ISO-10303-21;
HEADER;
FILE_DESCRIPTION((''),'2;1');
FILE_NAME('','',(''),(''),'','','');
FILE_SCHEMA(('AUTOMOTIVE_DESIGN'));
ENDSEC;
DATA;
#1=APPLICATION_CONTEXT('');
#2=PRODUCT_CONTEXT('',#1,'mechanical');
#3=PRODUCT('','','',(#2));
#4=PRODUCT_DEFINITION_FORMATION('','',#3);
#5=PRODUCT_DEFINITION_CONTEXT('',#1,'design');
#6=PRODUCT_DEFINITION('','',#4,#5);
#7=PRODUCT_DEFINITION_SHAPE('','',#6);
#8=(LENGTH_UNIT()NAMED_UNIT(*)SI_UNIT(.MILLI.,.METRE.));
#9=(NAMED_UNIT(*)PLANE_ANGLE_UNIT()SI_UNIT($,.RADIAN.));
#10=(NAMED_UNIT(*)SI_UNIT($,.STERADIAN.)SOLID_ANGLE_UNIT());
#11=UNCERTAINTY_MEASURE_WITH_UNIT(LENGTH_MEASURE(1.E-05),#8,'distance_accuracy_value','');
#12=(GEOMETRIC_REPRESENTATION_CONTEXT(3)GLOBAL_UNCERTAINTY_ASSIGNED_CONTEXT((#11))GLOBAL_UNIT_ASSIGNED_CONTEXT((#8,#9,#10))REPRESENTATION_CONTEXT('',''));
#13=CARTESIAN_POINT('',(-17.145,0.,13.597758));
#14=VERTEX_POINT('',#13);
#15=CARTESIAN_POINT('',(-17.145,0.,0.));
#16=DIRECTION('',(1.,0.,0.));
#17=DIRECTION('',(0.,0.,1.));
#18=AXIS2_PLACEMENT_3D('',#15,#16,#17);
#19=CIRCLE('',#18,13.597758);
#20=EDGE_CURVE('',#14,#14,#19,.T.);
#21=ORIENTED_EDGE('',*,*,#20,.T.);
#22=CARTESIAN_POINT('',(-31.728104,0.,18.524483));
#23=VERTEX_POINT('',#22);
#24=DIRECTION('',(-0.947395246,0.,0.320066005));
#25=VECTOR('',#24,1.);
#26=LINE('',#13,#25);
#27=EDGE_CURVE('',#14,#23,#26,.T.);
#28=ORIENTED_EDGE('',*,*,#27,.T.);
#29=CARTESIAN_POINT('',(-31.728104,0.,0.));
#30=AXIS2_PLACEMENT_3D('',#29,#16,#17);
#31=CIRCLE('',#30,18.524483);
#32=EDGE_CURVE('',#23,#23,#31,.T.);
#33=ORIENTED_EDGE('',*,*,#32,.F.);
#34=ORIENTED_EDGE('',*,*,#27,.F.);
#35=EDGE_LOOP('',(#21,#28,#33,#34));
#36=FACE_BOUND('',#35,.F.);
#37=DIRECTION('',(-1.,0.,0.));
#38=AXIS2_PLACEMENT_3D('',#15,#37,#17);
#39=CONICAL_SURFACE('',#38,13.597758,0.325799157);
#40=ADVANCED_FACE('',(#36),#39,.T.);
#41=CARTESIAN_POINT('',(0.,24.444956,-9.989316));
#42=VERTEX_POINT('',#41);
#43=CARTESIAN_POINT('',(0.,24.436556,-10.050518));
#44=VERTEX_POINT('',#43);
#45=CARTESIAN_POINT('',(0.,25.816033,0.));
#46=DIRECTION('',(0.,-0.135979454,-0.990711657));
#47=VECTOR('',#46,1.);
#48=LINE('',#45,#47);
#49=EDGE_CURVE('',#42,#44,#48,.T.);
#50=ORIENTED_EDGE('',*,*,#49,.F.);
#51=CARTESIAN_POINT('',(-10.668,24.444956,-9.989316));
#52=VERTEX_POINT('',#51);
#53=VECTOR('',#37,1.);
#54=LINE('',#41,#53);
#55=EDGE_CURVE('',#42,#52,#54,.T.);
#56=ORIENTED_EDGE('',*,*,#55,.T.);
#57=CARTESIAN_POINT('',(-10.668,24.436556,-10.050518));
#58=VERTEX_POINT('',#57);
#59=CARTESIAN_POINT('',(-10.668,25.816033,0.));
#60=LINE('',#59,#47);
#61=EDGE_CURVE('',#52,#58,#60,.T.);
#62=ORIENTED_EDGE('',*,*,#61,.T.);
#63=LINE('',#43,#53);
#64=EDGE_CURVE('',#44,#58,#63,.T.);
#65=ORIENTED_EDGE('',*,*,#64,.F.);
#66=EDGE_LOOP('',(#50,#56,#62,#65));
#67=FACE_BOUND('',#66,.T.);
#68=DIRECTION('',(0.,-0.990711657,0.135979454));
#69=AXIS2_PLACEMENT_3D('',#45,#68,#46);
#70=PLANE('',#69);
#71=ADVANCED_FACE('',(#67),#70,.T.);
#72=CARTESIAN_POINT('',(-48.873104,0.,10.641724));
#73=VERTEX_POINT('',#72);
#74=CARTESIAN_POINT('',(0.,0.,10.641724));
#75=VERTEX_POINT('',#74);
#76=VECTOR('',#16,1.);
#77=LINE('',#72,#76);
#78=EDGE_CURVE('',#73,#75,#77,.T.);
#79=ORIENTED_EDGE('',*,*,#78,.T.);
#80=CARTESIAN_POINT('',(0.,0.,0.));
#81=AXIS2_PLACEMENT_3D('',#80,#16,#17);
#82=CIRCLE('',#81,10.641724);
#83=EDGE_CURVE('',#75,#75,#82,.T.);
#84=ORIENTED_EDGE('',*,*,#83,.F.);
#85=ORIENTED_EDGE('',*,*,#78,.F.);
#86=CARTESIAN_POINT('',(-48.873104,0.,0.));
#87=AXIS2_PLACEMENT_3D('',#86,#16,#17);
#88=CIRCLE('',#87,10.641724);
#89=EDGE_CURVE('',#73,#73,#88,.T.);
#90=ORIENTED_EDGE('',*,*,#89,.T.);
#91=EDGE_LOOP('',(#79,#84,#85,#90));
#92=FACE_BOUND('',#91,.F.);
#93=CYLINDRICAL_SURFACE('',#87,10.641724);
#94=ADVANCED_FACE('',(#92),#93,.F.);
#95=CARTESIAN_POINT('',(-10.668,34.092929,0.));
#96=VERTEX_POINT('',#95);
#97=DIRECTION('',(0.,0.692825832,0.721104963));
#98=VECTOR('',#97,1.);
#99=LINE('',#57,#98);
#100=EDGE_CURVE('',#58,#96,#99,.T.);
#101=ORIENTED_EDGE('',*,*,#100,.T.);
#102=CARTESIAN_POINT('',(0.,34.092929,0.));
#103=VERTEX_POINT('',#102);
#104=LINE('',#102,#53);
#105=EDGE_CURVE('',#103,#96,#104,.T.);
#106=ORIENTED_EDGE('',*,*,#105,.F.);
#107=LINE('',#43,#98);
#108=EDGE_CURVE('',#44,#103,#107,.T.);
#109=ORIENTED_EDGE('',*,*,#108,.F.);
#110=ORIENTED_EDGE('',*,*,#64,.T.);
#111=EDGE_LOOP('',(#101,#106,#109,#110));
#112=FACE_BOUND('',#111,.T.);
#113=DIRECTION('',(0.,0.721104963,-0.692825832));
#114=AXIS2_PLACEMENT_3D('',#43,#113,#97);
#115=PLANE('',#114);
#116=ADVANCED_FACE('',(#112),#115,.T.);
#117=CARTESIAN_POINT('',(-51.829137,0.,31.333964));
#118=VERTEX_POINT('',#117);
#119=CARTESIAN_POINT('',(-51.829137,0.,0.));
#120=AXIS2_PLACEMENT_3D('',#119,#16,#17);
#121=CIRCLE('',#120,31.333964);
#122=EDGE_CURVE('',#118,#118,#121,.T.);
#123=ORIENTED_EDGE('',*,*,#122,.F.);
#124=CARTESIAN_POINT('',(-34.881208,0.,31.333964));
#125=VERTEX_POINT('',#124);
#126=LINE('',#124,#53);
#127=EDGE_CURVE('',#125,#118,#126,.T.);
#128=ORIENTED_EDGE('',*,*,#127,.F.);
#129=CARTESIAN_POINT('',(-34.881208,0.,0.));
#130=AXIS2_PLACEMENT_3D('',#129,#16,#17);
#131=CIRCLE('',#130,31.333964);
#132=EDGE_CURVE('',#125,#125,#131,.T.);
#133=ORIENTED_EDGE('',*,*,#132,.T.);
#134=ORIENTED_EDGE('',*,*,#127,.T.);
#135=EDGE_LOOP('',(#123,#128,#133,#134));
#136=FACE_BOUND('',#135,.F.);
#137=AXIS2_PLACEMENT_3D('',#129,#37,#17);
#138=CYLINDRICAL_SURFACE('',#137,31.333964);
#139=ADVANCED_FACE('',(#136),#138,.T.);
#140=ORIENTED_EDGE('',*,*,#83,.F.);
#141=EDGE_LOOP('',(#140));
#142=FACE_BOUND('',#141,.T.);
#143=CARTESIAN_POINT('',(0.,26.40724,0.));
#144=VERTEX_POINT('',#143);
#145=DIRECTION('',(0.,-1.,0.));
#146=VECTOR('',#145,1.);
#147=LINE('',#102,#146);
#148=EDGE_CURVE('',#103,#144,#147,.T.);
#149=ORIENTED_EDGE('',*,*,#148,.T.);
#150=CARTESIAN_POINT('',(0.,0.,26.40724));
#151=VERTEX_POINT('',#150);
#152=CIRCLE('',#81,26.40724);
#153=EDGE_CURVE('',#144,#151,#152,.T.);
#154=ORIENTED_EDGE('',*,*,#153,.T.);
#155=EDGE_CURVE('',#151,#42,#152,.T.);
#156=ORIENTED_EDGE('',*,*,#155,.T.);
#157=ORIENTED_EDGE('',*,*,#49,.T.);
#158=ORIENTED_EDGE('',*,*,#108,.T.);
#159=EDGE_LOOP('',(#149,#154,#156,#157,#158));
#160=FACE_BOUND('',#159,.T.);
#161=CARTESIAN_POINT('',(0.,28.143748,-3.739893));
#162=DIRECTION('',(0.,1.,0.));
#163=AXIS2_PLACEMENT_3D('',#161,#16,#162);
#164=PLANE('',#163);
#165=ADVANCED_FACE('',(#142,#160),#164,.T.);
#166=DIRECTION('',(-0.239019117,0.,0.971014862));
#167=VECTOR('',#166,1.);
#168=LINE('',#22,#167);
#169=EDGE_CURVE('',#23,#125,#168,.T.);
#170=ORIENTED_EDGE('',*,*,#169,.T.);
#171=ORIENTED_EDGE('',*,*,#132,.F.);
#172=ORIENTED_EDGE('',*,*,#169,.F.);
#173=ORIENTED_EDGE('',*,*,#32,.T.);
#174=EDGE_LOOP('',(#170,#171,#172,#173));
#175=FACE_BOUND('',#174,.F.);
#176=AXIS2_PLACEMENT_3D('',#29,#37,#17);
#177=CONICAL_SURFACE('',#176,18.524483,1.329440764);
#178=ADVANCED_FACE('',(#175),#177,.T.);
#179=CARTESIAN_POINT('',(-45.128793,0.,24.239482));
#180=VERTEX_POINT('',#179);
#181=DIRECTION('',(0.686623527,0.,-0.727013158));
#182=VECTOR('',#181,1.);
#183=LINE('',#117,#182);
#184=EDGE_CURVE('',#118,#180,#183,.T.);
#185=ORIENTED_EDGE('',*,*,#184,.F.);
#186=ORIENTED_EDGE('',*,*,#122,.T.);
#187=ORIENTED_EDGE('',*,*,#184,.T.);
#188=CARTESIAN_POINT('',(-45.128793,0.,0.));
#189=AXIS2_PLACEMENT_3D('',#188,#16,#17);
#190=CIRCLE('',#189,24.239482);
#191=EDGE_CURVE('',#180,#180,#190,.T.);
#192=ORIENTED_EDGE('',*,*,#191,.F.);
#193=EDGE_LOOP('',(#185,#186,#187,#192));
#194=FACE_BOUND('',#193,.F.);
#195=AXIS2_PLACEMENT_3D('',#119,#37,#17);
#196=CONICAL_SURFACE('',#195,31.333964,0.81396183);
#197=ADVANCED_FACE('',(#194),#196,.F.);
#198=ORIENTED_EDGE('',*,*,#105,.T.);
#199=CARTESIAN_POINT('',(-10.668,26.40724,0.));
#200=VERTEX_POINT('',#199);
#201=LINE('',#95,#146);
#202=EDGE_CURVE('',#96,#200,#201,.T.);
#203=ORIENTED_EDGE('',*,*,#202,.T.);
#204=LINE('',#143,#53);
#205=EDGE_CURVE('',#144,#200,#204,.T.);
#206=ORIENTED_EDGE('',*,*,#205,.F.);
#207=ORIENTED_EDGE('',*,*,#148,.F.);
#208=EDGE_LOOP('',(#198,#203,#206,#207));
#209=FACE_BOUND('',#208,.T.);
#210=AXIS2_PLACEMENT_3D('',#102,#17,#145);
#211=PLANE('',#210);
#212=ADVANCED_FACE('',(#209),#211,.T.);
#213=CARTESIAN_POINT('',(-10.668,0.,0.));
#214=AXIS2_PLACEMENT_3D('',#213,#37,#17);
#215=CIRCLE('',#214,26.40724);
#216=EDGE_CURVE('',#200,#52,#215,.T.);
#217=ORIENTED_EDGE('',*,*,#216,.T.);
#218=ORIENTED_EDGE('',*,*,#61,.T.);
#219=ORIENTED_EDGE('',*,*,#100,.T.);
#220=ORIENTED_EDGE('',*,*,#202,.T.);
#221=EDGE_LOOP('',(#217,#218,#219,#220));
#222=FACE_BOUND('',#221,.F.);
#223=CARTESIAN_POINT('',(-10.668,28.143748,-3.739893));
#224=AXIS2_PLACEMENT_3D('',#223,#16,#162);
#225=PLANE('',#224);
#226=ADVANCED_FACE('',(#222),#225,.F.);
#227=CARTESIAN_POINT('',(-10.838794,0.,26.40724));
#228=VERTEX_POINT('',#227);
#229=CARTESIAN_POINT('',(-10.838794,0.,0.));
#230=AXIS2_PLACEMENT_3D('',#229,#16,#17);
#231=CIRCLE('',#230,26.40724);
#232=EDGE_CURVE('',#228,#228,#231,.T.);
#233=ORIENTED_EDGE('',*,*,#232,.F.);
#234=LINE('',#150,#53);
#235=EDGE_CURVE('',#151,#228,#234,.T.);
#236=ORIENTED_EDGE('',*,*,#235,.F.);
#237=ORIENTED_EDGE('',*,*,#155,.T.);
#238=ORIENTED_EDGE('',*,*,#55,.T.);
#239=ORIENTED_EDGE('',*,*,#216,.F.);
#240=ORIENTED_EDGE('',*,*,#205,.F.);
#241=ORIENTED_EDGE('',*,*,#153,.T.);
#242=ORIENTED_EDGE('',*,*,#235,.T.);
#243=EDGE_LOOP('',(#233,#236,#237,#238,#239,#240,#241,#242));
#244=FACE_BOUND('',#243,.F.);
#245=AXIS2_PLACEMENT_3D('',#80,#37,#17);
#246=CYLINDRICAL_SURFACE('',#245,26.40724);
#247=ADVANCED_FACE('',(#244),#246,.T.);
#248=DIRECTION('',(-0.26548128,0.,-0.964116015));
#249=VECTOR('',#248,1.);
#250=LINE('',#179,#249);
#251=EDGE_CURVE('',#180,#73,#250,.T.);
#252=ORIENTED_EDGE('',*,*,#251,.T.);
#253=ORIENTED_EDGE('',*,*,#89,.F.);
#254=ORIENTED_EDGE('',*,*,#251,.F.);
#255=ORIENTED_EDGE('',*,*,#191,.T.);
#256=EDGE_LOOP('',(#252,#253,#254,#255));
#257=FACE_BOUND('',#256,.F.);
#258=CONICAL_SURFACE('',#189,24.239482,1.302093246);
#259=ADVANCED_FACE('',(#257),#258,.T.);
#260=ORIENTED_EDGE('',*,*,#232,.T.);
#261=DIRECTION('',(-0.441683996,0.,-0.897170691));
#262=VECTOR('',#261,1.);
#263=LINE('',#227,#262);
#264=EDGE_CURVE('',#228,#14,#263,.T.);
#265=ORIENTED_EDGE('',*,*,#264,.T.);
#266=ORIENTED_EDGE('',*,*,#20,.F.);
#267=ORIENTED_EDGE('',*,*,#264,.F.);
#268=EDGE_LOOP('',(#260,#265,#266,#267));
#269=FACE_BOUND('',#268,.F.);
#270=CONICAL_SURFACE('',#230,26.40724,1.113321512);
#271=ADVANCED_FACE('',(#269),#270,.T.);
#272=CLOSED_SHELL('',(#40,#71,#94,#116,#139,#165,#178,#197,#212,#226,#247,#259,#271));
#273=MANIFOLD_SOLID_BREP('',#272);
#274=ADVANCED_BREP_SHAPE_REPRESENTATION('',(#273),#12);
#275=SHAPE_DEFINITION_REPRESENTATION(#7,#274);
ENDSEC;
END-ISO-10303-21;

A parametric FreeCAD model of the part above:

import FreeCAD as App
import Part
import Sketcher
from FreeCAD import Vector
Q = App.Units.Quantity


def add_polygon(sketch, points):
    """Adds a closed chain of lines whose ends are joined by coincident constraints."""
    first, n = sketch.GeometryCount, len(points)
    for a, b in zip(points, points[1:] + points[:1]):
        sketch.addGeometry(Part.LineSegment(App.Vector(*a, 0), App.Vector(*b, 0)), False)
    for i in range(n):
        sketch.addConstraint(Sketcher.Constraint("Coincident", first + i, 2, first + (i + 1) % n, 1))

doc = App.newDocument("Part")
body = doc.addObject("PartDesign::Body", "Body")

# Sketch on XZ plane
sketch1 = doc.addObject("Sketcher::SketchObject", "Sketch")
body.addObject(sketch1)
sketch1.AttachmentSupport = (doc.XZ_Plane, [""])
sketch1.MapMode = "FlatFace"
add_polygon(sketch1, [(-45.128793, 24.239482), (-48.873104, 10.641724), (0, 10.641724), (0, 26.40724), (-10.838794, 26.40724), (-17.145, 13.597758), (-31.728104, 18.524483), (-34.881208, 31.333964), (-51.829137, 31.333964)])  # lines 0-8
sketch1.addConstraint([
    Sketcher.Constraint("Horizontal", 1),
    Sketcher.Constraint("Vertical", 2),
    Sketcher.Constraint("Horizontal", 3),
    Sketcher.Constraint("Horizontal", 7),
    Sketcher.Constraint("PointOnObject", 1, 2, -2),
    Sketcher.Constraint("DistanceX", 4, 2, -1, 1, Q("0.675 in")),
    Sketcher.Constraint("DistanceX", 0, 2, 5, 2, Q("0.675 in")),
    Sketcher.Constraint("DistanceY", 5, 2, 8, 2, Q("0.225 in")),
    Sketcher.Constraint("DistanceX", 7, 2, 7, 1, Q("16.947929 mm")),
    Sketcher.Constraint("Distance", 0, Q("14.103861 mm")),
    Sketcher.Constraint("Distance", 5, Q("15.392841 mm")),
    Sketcher.Constraint("Distance", 6, Q("13.191849 mm")),
    Sketcher.Constraint("DistanceX", 1, 1, 1, 2, Q("48.873104 mm")),
    Sketcher.Constraint("DistanceX", 3, 2, 3, 1, Q("10.838794 mm")),
    Sketcher.Constraint("DistanceY", 2, 1, 2, 2, Q("15.765516 mm")),
    Sketcher.Constraint("DistanceY", -1, 1, 2, 2, Q("26.40724 mm")),
    Sketcher.Constraint("DistanceY", -1, 1, 4, 2, Q("13.597758 mm")),
    Sketcher.Constraint("DistanceY", 5, 2, 6, 2, Q("12.809481 mm")),
])
revolution = doc.addObject("PartDesign::Revolution", "Revolution")
body.addObject(revolution)
revolution.Profile = sketch1
revolution.ReferenceAxis = (sketch1, ["H_Axis"])
revolution.Angle = 360

# Sketch on YZ plane
sketch2 = doc.addObject("Sketcher::SketchObject", "Sketch001")
body.addObject(sketch2)
sketch2.AttachmentSupport = (doc.YZ_Plane, [""])
sketch2.MapMode = "FlatFace"
add_polygon(sketch2, [(34.092929, 0), (25.816033, 0), (24.436556, -10.050518)])  # lines 0-2
sketch2.addConstraint([
    Sketcher.Constraint("Horizontal", 0),
    Sketcher.Constraint("PointOnObject", 0, 2, -1),
    Sketcher.Constraint("DistanceX", 0, 2, 0, 1, Q("8.276896 mm")),
    Sketcher.Constraint("DistanceX", -1, 1, 2, 2, Q("34.092929 mm")),
    Sketcher.Constraint("Distance", 1, Q("10.144746 mm")),
    Sketcher.Constraint("Distance", 2, Q("13.937663 mm")),
])
pad1 = doc.addObject("PartDesign::Pad", "Pad")
body.addObject(pad1)
pad1.Profile = sketch2
pad1.Length = Q("0.42 in")
pad1.Reversed = True

doc.recompute()
